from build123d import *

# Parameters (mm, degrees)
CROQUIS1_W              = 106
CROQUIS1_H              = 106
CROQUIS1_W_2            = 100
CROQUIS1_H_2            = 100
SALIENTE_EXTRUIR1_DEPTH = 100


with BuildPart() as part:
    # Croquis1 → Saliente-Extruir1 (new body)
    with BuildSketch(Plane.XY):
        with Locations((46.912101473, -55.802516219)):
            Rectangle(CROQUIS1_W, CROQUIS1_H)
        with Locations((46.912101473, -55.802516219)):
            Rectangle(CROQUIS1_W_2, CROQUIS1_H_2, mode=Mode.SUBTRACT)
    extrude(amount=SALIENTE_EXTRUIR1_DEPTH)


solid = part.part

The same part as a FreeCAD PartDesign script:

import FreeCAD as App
import Part
import Sketcher

V = App.Vector


def add_polygon(sketch, points):
    """Adds a closed chain of lines whose ends are joined by coincident constraints."""
    first, n = sketch.GeometryCount, len(points)
    for a, b in zip(points, points[1:] + points[:1]):
        sketch.addGeometry(Part.LineSegment(App.Vector(*a, 0), App.Vector(*b, 0)), False)
    for i in range(n):
        sketch.addConstraint(Sketcher.Constraint("Coincident", first + i, 2, first + (i + 1) % n, 1))

doc = App.newDocument("Part")
body = doc.addObject("PartDesign::Body", "Body")

# Sketch on XY plane
sketch1 = doc.addObject("Sketcher::SketchObject", "Sketch")
body.addObject(sketch1)
sketch1.AttachmentSupport = (doc.XY_Plane, [""])
sketch1.MapMode = "FlatFace"
add_polygon(sketch1, [(-6.087899, -2.802516), (-6.087899, -108.802516), (99.912101, -108.802516), (99.912101, -2.802516)])  # lines 0-3
add_polygon(sketch1, [(96.912101, -105.802516), (-3.087899, -105.802516), (-3.087899, -5.802516), (96.912101, -5.802516)])  # lines 4-7
sketch1.addConstraint([
    Sketcher.Constraint("Vertical", 0),
    Sketcher.Constraint("Horizontal", 1),
    Sketcher.Constraint("Vertical", 2),
    Sketcher.Constraint("Horizontal", 3),
    Sketcher.Constraint("Horizontal", 4),
    Sketcher.Constraint("Vertical", 5),
    Sketcher.Constraint("Horizontal", 6),
    Sketcher.Constraint("Vertical", 7),
    Sketcher.Constraint("Equal", 3, 0),
    Sketcher.Constraint("Equal", 6, 5),
    Sketcher.Constraint("DistanceX", 1, 1, 1, 2, 106.0),
    Sketcher.Constraint("DistanceX", 4, 2, 4, 1, 100.0),
    Sketcher.Constraint("DistanceX", 0, 2, 4, 2, 3.0),
    Sketcher.Constraint("DistanceY", 0, 2, 4, 2, 3.0),
    Sketcher.Constraint("DistanceX", 0, 2, -1, 1, 6.087899),
    Sketcher.Constraint("DistanceY", 0, 2, -1, 1, 108.802516),
])
pad1 = doc.addObject("PartDesign::Pad", "Pad")
body.addObject(pad1)
pad1.Profile = sketch1
pad1.Length = 100

doc.recompute()
